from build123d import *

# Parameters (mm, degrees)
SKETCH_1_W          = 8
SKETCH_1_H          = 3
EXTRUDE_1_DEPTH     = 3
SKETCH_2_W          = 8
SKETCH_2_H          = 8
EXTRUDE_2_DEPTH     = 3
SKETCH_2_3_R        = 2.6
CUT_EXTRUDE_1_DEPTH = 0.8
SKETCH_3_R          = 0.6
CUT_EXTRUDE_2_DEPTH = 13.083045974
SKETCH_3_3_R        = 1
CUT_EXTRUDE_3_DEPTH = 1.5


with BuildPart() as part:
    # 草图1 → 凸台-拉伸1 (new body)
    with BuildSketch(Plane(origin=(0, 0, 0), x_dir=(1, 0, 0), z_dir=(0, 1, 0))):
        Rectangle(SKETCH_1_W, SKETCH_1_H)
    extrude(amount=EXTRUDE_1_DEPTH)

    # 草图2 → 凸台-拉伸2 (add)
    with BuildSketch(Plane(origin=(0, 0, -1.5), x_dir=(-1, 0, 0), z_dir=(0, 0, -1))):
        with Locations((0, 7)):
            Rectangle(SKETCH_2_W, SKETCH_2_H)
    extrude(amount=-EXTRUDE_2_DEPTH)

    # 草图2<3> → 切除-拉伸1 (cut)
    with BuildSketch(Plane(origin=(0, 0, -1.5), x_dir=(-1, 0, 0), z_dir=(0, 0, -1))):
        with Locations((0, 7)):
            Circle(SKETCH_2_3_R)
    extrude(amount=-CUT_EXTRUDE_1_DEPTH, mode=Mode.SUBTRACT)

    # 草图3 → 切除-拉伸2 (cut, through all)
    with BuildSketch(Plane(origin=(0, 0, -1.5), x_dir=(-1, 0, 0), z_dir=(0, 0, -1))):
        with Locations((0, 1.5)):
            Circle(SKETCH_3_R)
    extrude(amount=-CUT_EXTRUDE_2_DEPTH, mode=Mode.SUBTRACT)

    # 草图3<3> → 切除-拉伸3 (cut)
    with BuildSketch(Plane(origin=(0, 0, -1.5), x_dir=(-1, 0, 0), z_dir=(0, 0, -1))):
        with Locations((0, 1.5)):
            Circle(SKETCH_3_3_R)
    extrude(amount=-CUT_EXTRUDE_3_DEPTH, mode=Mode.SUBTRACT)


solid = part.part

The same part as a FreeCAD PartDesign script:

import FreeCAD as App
import Part
import Sketcher
from FreeCAD import Vector
Q = App.Units.Quantity


def add_polygon(sketch, points):
    """Adds a closed chain of lines whose ends are joined by coincident constraints."""
    first, n = sketch.GeometryCount, len(points)
    for a, b in zip(points, points[1:] + points[:1]):
        sketch.addGeometry(Part.LineSegment(App.Vector(*a, 0), App.Vector(*b, 0)), False)
    for i in range(n):
        sketch.addConstraint(Sketcher.Constraint("Coincident", first + i, 2, first + (i + 1) % n, 1))

doc = App.newDocument("Part")
body = doc.addObject("PartDesign::Body", "Body")

# Sketch on XZ plane
sketch1 = body.newObject("Sketcher::SketchObject", "Sketch")
sketch1.AttachmentSupport = (doc.getObject("XZ_Plane"), [""])
sketch1.MapMode = "FlatFace"
add_polygon(sketch1, [(-4, -1.5), (-4, 1.5), (4, 1.5), (4, -1.5)])  # lines 0-3
sketch1.addConstraint([
    Sketcher.Constraint("Vertical", 0),
    Sketcher.Constraint("Horizontal", 1),
    Sketcher.Constraint("Vertical", 2),
    Sketcher.Constraint("Horizontal", 3),
    Sketcher.Constraint("Symmetric", 0, 2, 2, 2, -1, 1),
    Sketcher.Constraint("DistanceX", 1, 1, 1, 2, Q("8 mm")),
    Sketcher.Constraint("DistanceY", 0, 1, 0, 2, Q("3 mm")),
])
pad1 = body.newObject("PartDesign::Pad", "Pad")
pad1.Profile = sketch1
pad1.Length = 3
pad1.Reversed = True

# Sketch on XY plane
sketch2 = body.newObject("Sketcher::SketchObject", "Sketch001")
sketch2.AttachmentSupport = (doc.getObject("XY_Plane"), [""])
sketch2.MapMode = "FlatFace"
sketch2.AttachmentOffset = App.Placement(Vector(0, 0, -1.5), App.Rotation())
add_polygon(sketch2, [(4, 11), (4, 3), (-4, 3), (-4, 11)])  # lines 0-3
sketch2.addConstraint([
    Sketcher.Constraint("Vertical", 0),
    Sketcher.Constraint("Horizontal", 1),
    Sketcher.Constraint("Vertical", 2),
    Sketcher.Constraint("Horizontal", 3),
    Sketcher.Constraint("Equal", 3, 0),
    Sketcher.Constraint("DistanceX", 1, 2, 1, 1, Q("8 mm")),
    Sketcher.Constraint("DistanceX", -1, 1, 0, 2, Q("4 mm")),
    Sketcher.Constraint("DistanceY", -1, 1, 0, 2, Q("3 mm")),
])
pad2 = body.newObject("PartDesign::Pad", "Pad001")
pad2.Profile = sketch2
pad2.Length = 3

# Sketch on XY plane
sketch3 = body.newObject("Sketcher::SketchObject", "Sketch002")
sketch3.AttachmentSupport = (doc.getObject("XY_Plane"), [""])
sketch3.MapMode = "FlatFace"
sketch3.AttachmentOffset = App.Placement(Vector(0, 0, -1.5), App.Rotation())
sketch3.addGeometry(Part.Circle(Vector(0, 7, 0), Vector(0, 0, 1), 2.6), False)
sketch3.addConstraint([
    Sketcher.Constraint("PointOnObject", 0, 3, -2),
    Sketcher.Constraint("Diameter", 0, Q("5.2 mm")),
    Sketcher.Constraint("DistanceY", -1, 1, 0, 3, Q("7 mm")),
])
pocket1 = body.newObject("PartDesign::Pocket", "Pocket")
pocket1.Profile = sketch3
pocket1.Length = 0.8
pocket1.Reversed = True

# Sketch on XY plane
sketch4 = body.newObject("Sketcher::SketchObject", "Sketch003")
sketch4.AttachmentSupport = (doc.getObject("XY_Plane"), [""])
sketch4.MapMode = "FlatFace"
sketch4.AttachmentOffset = App.Placement(Vector(0, 0, -1.5), App.Rotation())
sketch4.addGeometry(Part.Circle(Vector(0, 1.5, 0), Vector(0, 0, 1), 0.6), False)
sketch4.addConstraint([
    Sketcher.Constraint("PointOnObject", 0, 3, -2),
    Sketcher.Constraint("Diameter", 0, Q("1.2 mm")),
    Sketcher.Constraint("DistanceY", -1, 1, 0, 3, Q("1.5 mm")),
])
pocket2 = body.newObject("PartDesign::Pocket", "Pocket001")
pocket2.Profile = sketch4
pocket2.Type = "ThroughAll"
pocket2.Reversed = True

# Sketch on XY plane
sketch5 = body.newObject("Sketcher::SketchObject", "Sketch004")
sketch5.AttachmentSupport = (doc.getObject("XY_Plane"), [""])
sketch5.MapMode = "FlatFace"
sketch5.AttachmentOffset = App.Placement(Vector(0, 0, -1.5), App.Rotation())
sketch5.addGeometry(Part.Circle(Vector(0, 1.5, 0), Vector(0, 0, 1), 1), False)
sketch5.addConstraint([
    Sketcher.Constraint("PointOnObject", 0, 3, -2),
    Sketcher.Constraint("Diameter", 0, Q("2 mm")),
    Sketcher.Constraint("DistanceY", -1, 1, 0, 3, Q("1.5 mm")),
])
pocket3 = body.newObject("PartDesign::Pocket", "Pocket002")
pocket3.Profile = sketch5
pocket3.Length = 1.5
pocket3.Reversed = True

doc.recompute()
